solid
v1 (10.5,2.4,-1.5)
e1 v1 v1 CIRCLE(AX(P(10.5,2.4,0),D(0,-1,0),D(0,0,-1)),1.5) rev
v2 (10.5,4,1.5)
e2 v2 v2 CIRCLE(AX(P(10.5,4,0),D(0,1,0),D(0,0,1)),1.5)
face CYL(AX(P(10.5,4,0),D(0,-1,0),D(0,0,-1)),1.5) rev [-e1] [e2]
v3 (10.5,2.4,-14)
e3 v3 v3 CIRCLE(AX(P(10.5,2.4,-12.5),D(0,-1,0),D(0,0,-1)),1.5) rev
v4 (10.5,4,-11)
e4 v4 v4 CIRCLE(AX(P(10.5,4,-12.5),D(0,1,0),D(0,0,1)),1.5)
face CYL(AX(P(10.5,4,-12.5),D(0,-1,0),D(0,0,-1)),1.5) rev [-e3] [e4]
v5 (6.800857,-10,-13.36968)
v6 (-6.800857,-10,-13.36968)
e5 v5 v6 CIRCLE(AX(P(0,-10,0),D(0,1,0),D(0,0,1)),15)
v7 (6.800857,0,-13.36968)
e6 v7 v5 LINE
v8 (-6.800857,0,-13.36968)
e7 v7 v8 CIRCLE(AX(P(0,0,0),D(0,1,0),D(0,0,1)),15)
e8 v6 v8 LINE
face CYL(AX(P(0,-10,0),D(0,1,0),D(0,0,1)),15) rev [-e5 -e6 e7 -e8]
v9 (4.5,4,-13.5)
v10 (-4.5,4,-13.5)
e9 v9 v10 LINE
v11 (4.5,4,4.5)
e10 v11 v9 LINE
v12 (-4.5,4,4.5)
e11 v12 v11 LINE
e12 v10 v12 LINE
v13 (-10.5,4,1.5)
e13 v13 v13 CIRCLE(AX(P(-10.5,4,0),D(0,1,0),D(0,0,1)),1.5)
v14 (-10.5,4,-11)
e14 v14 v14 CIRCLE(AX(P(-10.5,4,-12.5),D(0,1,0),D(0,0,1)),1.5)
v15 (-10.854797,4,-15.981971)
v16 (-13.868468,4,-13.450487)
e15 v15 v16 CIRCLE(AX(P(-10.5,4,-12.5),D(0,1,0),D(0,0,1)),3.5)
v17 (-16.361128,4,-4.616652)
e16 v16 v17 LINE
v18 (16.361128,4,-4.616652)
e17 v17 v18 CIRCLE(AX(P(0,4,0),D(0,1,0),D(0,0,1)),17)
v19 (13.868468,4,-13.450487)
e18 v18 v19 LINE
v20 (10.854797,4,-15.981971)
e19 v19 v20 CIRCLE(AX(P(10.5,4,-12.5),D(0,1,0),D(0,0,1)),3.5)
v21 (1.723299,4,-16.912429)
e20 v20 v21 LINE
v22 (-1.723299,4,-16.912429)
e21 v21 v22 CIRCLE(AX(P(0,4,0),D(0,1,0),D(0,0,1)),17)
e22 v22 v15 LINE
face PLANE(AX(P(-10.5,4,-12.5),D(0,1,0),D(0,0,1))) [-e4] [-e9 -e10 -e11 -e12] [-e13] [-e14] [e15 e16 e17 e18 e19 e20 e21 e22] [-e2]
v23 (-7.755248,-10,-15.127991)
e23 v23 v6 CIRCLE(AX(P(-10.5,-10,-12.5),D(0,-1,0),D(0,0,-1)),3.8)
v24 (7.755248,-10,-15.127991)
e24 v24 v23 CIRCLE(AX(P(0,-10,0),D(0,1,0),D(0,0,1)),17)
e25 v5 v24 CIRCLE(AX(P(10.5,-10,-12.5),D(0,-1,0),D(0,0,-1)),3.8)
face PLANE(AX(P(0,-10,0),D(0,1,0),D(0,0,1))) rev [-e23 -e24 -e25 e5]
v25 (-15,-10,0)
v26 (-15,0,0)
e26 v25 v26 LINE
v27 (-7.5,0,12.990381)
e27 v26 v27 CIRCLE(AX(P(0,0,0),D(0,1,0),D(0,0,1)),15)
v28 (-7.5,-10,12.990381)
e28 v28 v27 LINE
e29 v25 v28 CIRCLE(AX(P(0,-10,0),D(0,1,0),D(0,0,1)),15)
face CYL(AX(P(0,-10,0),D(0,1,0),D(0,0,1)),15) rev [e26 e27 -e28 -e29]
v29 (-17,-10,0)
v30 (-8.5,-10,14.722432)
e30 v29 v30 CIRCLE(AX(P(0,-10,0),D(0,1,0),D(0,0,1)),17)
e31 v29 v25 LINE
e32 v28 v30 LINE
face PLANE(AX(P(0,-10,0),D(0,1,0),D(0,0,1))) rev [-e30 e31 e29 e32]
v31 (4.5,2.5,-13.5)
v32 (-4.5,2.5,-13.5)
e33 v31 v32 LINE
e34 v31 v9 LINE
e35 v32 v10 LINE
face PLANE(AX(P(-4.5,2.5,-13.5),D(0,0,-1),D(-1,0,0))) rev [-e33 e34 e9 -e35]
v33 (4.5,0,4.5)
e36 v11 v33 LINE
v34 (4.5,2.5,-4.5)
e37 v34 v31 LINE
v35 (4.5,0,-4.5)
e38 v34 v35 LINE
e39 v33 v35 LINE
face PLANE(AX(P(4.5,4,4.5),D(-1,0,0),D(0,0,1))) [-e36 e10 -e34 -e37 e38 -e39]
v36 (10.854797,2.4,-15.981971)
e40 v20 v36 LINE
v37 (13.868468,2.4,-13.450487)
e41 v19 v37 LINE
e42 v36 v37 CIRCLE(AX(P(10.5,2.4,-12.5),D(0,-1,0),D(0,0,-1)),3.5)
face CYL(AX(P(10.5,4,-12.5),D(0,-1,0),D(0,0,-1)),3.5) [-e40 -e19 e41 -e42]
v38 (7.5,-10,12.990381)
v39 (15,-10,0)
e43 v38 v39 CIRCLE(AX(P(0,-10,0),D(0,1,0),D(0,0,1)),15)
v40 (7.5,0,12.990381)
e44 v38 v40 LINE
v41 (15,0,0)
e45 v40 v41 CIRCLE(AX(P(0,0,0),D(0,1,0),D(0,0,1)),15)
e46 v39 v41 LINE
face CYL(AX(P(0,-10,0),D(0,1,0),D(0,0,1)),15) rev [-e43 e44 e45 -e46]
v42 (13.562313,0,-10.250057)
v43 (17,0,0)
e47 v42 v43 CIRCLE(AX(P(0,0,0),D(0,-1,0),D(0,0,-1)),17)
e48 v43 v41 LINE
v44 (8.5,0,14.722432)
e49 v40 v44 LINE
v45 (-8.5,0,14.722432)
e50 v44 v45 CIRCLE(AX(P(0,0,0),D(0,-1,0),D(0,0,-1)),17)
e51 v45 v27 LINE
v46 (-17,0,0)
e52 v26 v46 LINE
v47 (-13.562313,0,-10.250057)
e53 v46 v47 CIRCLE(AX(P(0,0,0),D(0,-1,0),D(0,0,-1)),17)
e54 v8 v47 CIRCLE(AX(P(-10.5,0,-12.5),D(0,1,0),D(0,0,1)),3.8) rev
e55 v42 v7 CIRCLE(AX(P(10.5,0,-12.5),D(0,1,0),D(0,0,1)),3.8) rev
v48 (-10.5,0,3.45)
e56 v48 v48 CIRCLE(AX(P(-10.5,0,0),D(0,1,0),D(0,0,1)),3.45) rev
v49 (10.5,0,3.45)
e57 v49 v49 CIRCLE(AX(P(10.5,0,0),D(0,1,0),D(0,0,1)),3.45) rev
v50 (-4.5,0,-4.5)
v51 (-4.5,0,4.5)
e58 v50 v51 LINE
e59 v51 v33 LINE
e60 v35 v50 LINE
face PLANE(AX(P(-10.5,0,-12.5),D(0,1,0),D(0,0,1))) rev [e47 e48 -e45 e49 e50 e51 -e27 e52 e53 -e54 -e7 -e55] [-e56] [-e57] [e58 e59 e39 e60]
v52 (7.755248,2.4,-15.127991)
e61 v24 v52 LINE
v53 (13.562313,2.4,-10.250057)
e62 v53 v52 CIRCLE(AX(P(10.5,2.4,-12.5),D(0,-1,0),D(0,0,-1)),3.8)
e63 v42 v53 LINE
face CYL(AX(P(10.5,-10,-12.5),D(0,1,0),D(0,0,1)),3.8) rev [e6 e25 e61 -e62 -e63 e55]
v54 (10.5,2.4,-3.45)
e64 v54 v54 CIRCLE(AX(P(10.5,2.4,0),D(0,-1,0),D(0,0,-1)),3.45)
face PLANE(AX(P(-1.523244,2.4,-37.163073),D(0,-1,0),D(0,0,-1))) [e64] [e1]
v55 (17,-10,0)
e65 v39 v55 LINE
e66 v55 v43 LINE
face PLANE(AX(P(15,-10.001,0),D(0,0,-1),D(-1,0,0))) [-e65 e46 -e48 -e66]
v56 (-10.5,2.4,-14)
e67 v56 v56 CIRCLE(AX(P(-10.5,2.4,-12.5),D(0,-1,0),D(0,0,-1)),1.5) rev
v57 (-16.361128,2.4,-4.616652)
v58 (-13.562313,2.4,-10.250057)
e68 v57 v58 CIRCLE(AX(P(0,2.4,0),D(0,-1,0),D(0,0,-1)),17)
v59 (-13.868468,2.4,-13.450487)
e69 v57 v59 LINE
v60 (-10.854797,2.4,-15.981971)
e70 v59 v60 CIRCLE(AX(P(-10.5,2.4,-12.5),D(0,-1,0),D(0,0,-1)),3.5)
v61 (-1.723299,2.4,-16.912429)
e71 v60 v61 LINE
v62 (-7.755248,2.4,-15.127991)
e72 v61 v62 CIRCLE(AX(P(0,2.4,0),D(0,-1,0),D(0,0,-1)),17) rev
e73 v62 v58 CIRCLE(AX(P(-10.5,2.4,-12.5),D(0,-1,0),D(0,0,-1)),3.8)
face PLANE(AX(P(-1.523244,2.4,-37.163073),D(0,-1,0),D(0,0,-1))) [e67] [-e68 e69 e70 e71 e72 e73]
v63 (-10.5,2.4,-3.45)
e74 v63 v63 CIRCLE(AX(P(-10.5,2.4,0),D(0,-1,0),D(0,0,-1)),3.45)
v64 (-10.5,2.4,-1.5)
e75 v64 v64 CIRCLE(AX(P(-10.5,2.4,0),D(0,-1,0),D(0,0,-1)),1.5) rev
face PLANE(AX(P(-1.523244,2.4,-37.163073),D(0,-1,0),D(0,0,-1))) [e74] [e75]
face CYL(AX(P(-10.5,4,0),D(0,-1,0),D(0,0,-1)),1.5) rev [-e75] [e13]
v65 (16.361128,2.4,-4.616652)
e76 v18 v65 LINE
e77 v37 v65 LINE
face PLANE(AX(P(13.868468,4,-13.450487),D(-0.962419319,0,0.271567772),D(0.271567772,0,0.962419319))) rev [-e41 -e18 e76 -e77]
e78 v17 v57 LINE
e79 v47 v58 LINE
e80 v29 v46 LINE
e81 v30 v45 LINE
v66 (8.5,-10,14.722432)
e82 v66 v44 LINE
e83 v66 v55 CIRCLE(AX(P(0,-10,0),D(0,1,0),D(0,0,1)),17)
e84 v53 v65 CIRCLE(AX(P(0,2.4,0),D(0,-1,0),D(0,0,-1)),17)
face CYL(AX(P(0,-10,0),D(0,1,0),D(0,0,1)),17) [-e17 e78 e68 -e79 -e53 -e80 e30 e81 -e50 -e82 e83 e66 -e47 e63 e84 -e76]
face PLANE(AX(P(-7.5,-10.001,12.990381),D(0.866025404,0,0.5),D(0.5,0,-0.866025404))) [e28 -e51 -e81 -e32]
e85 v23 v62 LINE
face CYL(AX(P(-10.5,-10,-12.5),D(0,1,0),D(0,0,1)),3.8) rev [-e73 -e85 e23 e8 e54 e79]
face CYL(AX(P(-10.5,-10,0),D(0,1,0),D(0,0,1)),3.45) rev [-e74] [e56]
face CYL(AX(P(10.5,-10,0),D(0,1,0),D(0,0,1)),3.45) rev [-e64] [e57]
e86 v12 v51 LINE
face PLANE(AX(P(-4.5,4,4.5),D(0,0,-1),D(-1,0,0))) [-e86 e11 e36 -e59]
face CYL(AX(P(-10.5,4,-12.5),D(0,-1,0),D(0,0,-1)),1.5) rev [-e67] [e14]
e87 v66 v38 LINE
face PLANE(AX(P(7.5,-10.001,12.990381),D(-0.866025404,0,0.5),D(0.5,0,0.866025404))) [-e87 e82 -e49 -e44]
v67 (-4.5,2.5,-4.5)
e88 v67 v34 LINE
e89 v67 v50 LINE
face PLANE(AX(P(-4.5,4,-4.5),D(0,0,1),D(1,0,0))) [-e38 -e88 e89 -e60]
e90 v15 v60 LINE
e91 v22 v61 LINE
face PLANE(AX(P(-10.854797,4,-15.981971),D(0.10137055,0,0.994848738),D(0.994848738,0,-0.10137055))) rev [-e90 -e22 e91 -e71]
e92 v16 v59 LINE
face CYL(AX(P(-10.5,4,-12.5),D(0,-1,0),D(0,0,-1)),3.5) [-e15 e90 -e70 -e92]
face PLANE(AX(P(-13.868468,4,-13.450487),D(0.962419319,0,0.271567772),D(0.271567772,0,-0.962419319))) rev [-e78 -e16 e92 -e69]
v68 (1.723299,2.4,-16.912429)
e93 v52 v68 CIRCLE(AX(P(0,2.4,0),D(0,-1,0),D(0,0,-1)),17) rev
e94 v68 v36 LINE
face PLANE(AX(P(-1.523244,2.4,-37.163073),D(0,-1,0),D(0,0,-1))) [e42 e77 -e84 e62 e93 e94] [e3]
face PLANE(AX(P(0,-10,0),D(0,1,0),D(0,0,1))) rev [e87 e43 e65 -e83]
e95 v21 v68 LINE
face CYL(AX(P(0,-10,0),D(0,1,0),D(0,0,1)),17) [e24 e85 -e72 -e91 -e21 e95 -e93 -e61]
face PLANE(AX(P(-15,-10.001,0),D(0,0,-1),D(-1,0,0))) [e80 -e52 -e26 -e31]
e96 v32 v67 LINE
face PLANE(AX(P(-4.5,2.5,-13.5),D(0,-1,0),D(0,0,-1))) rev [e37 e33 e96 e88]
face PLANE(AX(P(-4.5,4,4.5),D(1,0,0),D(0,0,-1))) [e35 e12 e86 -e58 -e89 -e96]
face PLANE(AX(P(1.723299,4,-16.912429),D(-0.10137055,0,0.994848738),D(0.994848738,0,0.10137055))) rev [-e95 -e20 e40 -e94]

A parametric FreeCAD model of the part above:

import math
import FreeCAD as App
import Part
import Sketcher
from FreeCAD import Vector
Q = App.Units.Quantity

doc = App.newDocument("Part")
body = doc.addObject("PartDesign::Body", "Body")

# Sketch on XZ plane
sketch1 = body.newObject("Sketcher::SketchObject", "Sketch")
sketch1.AttachmentSupport = (doc.getObject("XZ_Plane"), [""])
sketch1.MapMode = "FlatFace"
sketch1.addGeometry([
    Part.Circle(Vector(0, 0, 0), Vector(0, 0, 1), 17),
    Part.Circle(Vector(0, 0, 0), Vector(0, 0, 1), 15),
], False)
sketch1.addConstraint([
    Sketcher.Constraint("Coincident", 0, 3, -1, 1),
    Sketcher.Constraint("Coincident", 1, 3, -1, 1),
    Sketcher.Constraint("Diameter", 0, 34.0),
    Sketcher.Constraint("Diameter", 1, 30.0),
])
pad1 = body.newObject("PartDesign::Pad", "Pad")
pad1.Profile = sketch1
pad1.Length = 10

# Sketch on XZ plane
sketch2 = body.newObject("Sketcher::SketchObject", "Sketch001")
sketch2.AttachmentSupport = (doc.getObject("XZ_Plane"), [""])
sketch2.MapMode = "FlatFace"
sketch2.AttachmentOffset = App.Placement(Vector(0, 0, -4), App.Rotation())
sketch2.addGeometry([
    Part.LineSegment(Vector(-1.7, -16.9, 0), Vector(-10.9, -16, 0)),  # 0
    Part.ArcOfCircle(Part.Circle(Vector(-10.5, -12.5, 0), Vector(0, 0, 1), 3.5), math.radians(-164), math.radians(-96)),  # 1
    Part.LineSegment(Vector(-13.9, -13.5, 0), Vector(-16.4, -4.6, 0)),  # 2
    Part.ArcOfCircle(Part.Circle(Vector(0, 0, 0), Vector(0, 0, 1), 17), math.radians(-16), math.radians(196)),  # 3
    Part.LineSegment(Vector(16.4, -4.6, 0), Vector(13.9, -13.5, 0)),  # 4
    Part.ArcOfCircle(Part.Circle(Vector(10.5, -12.5, 0), Vector(0, 0, 1), 3.5), math.radians(-84), math.radians(-16)),  # 5
    Part.LineSegment(Vector(10.9, -16, 0), Vector(1.7, -16.9, 0)),  # 6
    Part.ArcOfCircle(Part.Circle(Vector(0, 0, 0), Vector(0, 0, 1), 17), math.radians(-95.82), math.radians(-84.18)),  # 7
    Part.Circle(Vector(10.5, 0, 0), Vector(0, 0, 1), 1.5),  # 8
    Part.LineSegment(Vector(-4.5, 4.5, 0), Vector(-4.5, -4.5, 0)),  # 9
    Part.LineSegment(Vector(-4.5, -4.5, 0), Vector(4.5, -4.5, 0)),  # 10
    Part.LineSegment(Vector(4.5, -4.5, 0), Vector(4.5, 4.5, 0)),  # 11
    Part.LineSegment(Vector(4.5, 4.5, 0), Vector(-4.5, 4.5, 0)),  # 12
    Part.Circle(Vector(-10.5, 0, 0), Vector(0, 0, 1), 1.5),  # 13
    Part.Circle(Vector(10.5, -12.5, 0), Vector(0, 0, 1), 1.5),  # 14
    Part.Circle(Vector(-10.5, -12.5, 0), Vector(0, 0, 1), 1.5),  # 15
], False)
sketch2.addConstraint([
    Sketcher.Constraint("Tangent", 0, 2, 1, 2),
    Sketcher.Constraint("Tangent", 1, 1, 2, 1),
    Sketcher.Constraint("Tangent", 2, 2, 3, 2),
    Sketcher.Constraint("Tangent", 3, 1, 4, 1),
    Sketcher.Constraint("Tangent", 4, 2, 5, 2),
    Sketcher.Constraint("Tangent", 5, 1, 6, 1),
    Sketcher.Constraint("Tangent", 6, 2, 7, 2),
    Sketcher.Constraint("Tangent", 7, 1, 0, 1),
    Sketcher.Constraint("Coincident", 9, 2, 10, 1),
    Sketcher.Constraint("Coincident", 10, 2, 11, 1),
    Sketcher.Constraint("Coincident", 11, 2, 12, 1),
    Sketcher.Constraint("Coincident", 12, 2, 9, 1),
    Sketcher.Constraint("Vertical", 9),
    Sketcher.Constraint("Horizontal", 10),
    Sketcher.Constraint("Vertical", 11),
    Sketcher.Constraint("Horizontal", 12),
    Sketcher.Constraint("Coincident", 3, 3, -1, 1),
    Sketcher.Constraint("Coincident", 7, 3, -1, 1),
    Sketcher.Constraint("Coincident", 14, 3, 5, 3),
    Sketcher.Constraint("Coincident", 15, 3, 1, 3),
    Sketcher.Constraint("Equal", 1, 5),
    Sketcher.Constraint("Equal", 3, 7),
    Sketcher.Constraint("Equal", 8, 13),
    Sketcher.Constraint("Equal", 13, 14),
    Sketcher.Constraint("Equal", 14, 15),
    Sketcher.Constraint("Symmetric", 8, 3, 13, 3, -1, 1),
    Sketcher.Constraint("Symmetric", 9, 2, 11, 2, -1, 1),
    Sketcher.Constraint("Symmetric", 1, 3, 5, 3, -2),
    Sketcher.Constraint("PointOnObject", 8, 3, -1),
    Sketcher.Constraint("Vertical", 5, 3, 8, 3),
    Sketcher.Constraint("Equal", 12, 9),
    Sketcher.Constraint("Diameter", 8, 3.0),
    Sketcher.Constraint("Radius", 3, 17.0),
    Sketcher.Constraint("Radius", 1, 3.5),
    Sketcher.Constraint("DistanceX", 10, 1, 10, 2, 9.0),
    Sketcher.Constraint("DistanceX", 1, 3, 5, 3, 21.0),
    Sketcher.Constraint("DistanceY", 1, 3, 9, 2, 8.0),
])
pad2 = body.newObject("PartDesign::Pad", "Pad001")
pad2.Profile = sketch2
pad2.Length = 4

# Sketch on XZ plane
sketch3 = body.newObject("Sketcher::SketchObject", "Sketch002")
sketch3.AttachmentSupport = (doc.getObject("XZ_Plane"), [""])
sketch3.MapMode = "FlatFace"
sketch3.addGeometry([
    Part.LineSegment(Vector(7.5, 13, 0), Vector(8.5, 14.7, 0)),
    Part.ArcOfCircle(Part.Circle(Vector(0, 0, 0), Vector(0, 0, 1), 17), math.radians(60), math.radians(120)),
    Part.LineSegment(Vector(-8.5, 14.7, 0), Vector(-7.5, 13, 0)),
    Part.ArcOfCircle(Part.Circle(Vector(0, 0, 0), Vector(0, 0, 1), 15), math.radians(60), math.radians(120)),
], False)
sketch3.addConstraint([
    Sketcher.Constraint("Coincident", 0, 2, 1, 1),
    Sketcher.Constraint("Coincident", 1, 2, 2, 1),
    Sketcher.Constraint("Coincident", 2, 2, 3, 2),
    Sketcher.Constraint("Coincident", 3, 1, 0, 1),
    Sketcher.Constraint("Coincident", 1, 3, -1, 1),
    Sketcher.Constraint("Coincident", 3, 3, -1, 1),
    Sketcher.Constraint("Horizontal", 0, 2, 1, 2),
    Sketcher.Constraint("Horizontal", 2, 2, 3, 1),
    Sketcher.Constraint("Radius", 1, 17.0),
    Sketcher.Constraint("Radius", 3, 15.0),
    Sketcher.Constraint("Angle", 0, Q("60 deg")),
    Sketcher.Constraint("DistanceX", 1, 2, 0, 2, 17.0),
])
pocket1 = body.newObject("PartDesign::Pocket", "Pocket")
pocket1.Profile = sketch3
pocket1.Type = "UpToFirst"
pocket1.Reversed = True

# Sketch on XZ plane
sketch4 = body.newObject("Sketcher::SketchObject", "Sketch003")
sketch4.AttachmentSupport = (doc.getObject("XZ_Plane"), [""])
sketch4.MapMode = "FlatFace"
sketch4.addGeometry([
    Part.LineSegment(Vector(7.5, -13, 0), Vector(8.5, -14.7, 0)),
    Part.ArcOfCircle(Part.Circle(Vector(0, 0, 0), Vector(0, 0, 1), 17), math.radians(-60), math.radians(0)),
    Part.LineSegment(Vector(17, 0, 0), Vector(15, 0, 0)),
    Part.ArcOfCircle(Part.Circle(Vector(0, 0, 0), Vector(0, 0, 1), 15), math.radians(-60), math.radians(0)),
], False)
sketch4.addConstraint([
    Sketcher.Constraint("Coincident", 0, 2, 1, 1),
    Sketcher.Constraint("Coincident", 1, 2, 2, 1),
    Sketcher.Constraint("Coincident", 2, 2, 3, 2),
    Sketcher.Constraint("Coincident", 3, 1, 0, 1),
    Sketcher.Constraint("Horizontal", 2),
    Sketcher.Constraint("Coincident", 1, 3, -1, 1),
    Sketcher.Constraint("Coincident", 3, 3, -1, 1),
    Sketcher.Constraint("PointOnObject", 1, 2, -1),
    Sketcher.Constraint("Radius", 1, 17.0),
    Sketcher.Constraint("Radius", 3, 15.0),
    Sketcher.Constraint("Angle", 0, Q("-60 deg")),
    Sketcher.Constraint("DistanceX", -1, 1, 0, 2, 8.5),
])
pocket2 = body.newObject("PartDesign::Pocket", "Pocket001")
pocket2.Profile = sketch4
pocket2.Type = "UpToFirst"
pocket2.Reversed = True

# Sketch on XZ plane
sketch5 = body.newObject("Sketcher::SketchObject", "Sketch004")
sketch5.AttachmentSupport = (doc.getObject("XZ_Plane"), [""])
sketch5.MapMode = "FlatFace"
sketch5.addGeometry([
    Part.LineSegment(Vector(-8.5, -14.7, 0), Vector(-7.5, -13, 0)),
    Part.ArcOfCircle(Part.Circle(Vector(0, 0, 0), Vector(0, 0, 1), 15), math.radians(180), math.radians(240)),
    Part.LineSegment(Vector(-15, 0, 0), Vector(-17, 0, 0)),
    Part.ArcOfCircle(Part.Circle(Vector(0, 0, 0), Vector(0, 0, 1), 17), math.radians(-180), math.radians(-120)),
], False)
sketch5.addConstraint([
    Sketcher.Constraint("Coincident", 0, 2, 1, 2),
    Sketcher.Constraint("Coincident", 1, 1, 2, 1),
    Sketcher.Constraint("Coincident", 2, 2, 3, 1),
    Sketcher.Constraint("Coincident", 3, 2, 0, 1),
    Sketcher.Constraint("Horizontal", 2),
    Sketcher.Constraint("Coincident", 1, 3, -1, 1),
    Sketcher.Constraint("Coincident", 3, 3, -1, 1),
    Sketcher.Constraint("PointOnObject", 1, 1, -1),
    Sketcher.Constraint("Radius", 1, 15.0),
    Sketcher.Constraint("Radius", 3, 17.0),
    Sketcher.Constraint("Angle", 0, Q("60 deg")),
    Sketcher.Constraint("DistanceX", 0, 2, -1, 1, 7.5),
])
pocket3 = body.newObject("PartDesign::Pocket", "Pocket002")
pocket3.Profile = sketch5
pocket3.Type = "UpToFirst"
pocket3.Reversed = True

# Sketch on XZ plane
sketch6 = body.newObject("Sketcher::SketchObject", "Sketch005")
sketch6.AttachmentSupport = (doc.getObject("XZ_Plane"), [""])
sketch6.MapMode = "FlatFace"
sketch6.addGeometry([
    Part.LineSegment(Vector(-16.4, -4.6, 0), Vector(-13.9, -13.5, 0)),  # 0
    Part.ArcOfCircle(Part.Circle(Vector(-10.5, -12.5, 0), Vector(0, 0, 1), 3.5), math.radians(-164), math.radians(-96)),  # 1
    Part.LineSegment(Vector(-10.9, -16, 0), Vector(-1.7, -16.9, 0)),  # 2
    Part.ArcOfCircle(Part.Circle(Vector(0, 0, 0), Vector(0, 0, 1), 17), math.radians(-117), math.radians(-96)),  # 3
    Part.ArcOfCircle(Part.Circle(Vector(-10.5, -12.5, 0), Vector(0, 0, 1), 3.8), math.radians(-44), math.radians(144)),  # 4
    Part.ArcOfCircle(Part.Circle(Vector(0, 0, 0), Vector(0, 0, 1), 17), math.radians(-164), math.radians(-143)),  # 5
    Part.Circle(Vector(-10.5, -12.5, 0), Vector(0, 0, 1), 1.5),  # 6
    Part.ArcOfCircle(Part.Circle(Vector(0, 0, 0), Vector(0, 0, 1), 17), math.radians(-84), math.radians(-63)),  # 7
    Part.LineSegment(Vector(1.7, -16.9, 0), Vector(10.9, -16, 0)),  # 8
    Part.ArcOfCircle(Part.Circle(Vector(10.5, -12.5, 0), Vector(0, 0, 1), 3.5), math.radians(-84), math.radians(-16)),  # 9
    Part.LineSegment(Vector(13.9, -13.5, 0), Vector(16.4, -4.6, 0)),  # 10
    Part.ArcOfCircle(Part.Circle(Vector(0, 0, 0), Vector(0, 0, 1), 17), math.radians(-37), math.radians(-16)),  # 11
    Part.ArcOfCircle(Part.Circle(Vector(10.5, -12.5, 0), Vector(0, 0, 1), 3.8), math.radians(36), math.radians(224)),  # 12
    Part.Circle(Vector(10.5, -12.5, 0), Vector(0, 0, 1), 1.5),  # 13
    Part.Circle(Vector(-10.5, 0, 0), Vector(0, 0, 1), 3.5),  # 14
    Part.Circle(Vector(-10.5, 0, 0), Vector(0, 0, 1), 1.5),  # 15
    Part.Circle(Vector(10.5, 0, 0), Vector(0, 0, 1), 3.5),  # 16
    Part.Circle(Vector(10.5, 0, 0), Vector(0, 0, 1), 1.5),  # 17
], False)
sketch6.addConstraint([
    Sketcher.Constraint("Tangent", 0, 2, 1, 1),
    Sketcher.Constraint("Tangent", 1, 2, 2, 1),
    Sketcher.Constraint("Tangent", 2, 2, 3, 2),
    Sketcher.Constraint("Coincident", 3, 1, 4, 1),
    Sketcher.Constraint("Coincident", 4, 2, 5, 2),
    Sketcher.Constraint("Tangent", 5, 1, 0, 1),
    Sketcher.Constraint("Tangent", 7, 1, 8, 1),
    Sketcher.Constraint("Tangent", 8, 2, 9, 1),
    Sketcher.Constraint("Tangent", 9, 2, 10, 1),
    Sketcher.Constraint("Tangent", 10, 2, 11, 2),
    Sketcher.Constraint("Coincident", 11, 1, 12, 1),
    Sketcher.Constraint("Coincident", 12, 2, 7, 2),
    Sketcher.Constraint("Coincident", 3, 3, -1, 1),
    Sketcher.Constraint("Coincident", 5, 3, -1, 1),
    Sketcher.Constraint("Coincident", 7, 3, -1, 1),
    Sketcher.Constraint("Coincident", 11, 3, -1, 1),
    Sketcher.Constraint("Coincident", 4, 3, 1, 3),
    Sketcher.Constraint("Coincident", 6, 3, 1, 3),
    Sketcher.Constraint("Coincident", 12, 3, 9, 3),
    Sketcher.Constraint("Coincident", 13, 3, 9, 3),
    Sketcher.Constraint("Coincident", 15, 3, 14, 3),
    Sketcher.Constraint("Coincident", 17, 3, 16, 3),
    Sketcher.Constraint("Equal", 3, 5),
    Sketcher.Constraint("Equal", 5, 7),
    Sketcher.Constraint("Equal", 1, 9),
    Sketcher.Constraint("Equal", 7, 11),
    Sketcher.Constraint("Equal", 4, 12),
    Sketcher.Constraint("Equal", 6, 13),
    Sketcher.Constraint("Equal", 13, 15),
    Sketcher.Constraint("Equal", 14, 16),
    Sketcher.Constraint("Equal", 15, 17),
    Sketcher.Constraint("Symmetric", 14, 3, 16, 3, -1, 1),
    Sketcher.Constraint("Symmetric", 1, 3, 9, 3, -2),
    Sketcher.Constraint("PointOnObject", 14, 3, -1),
    Sketcher.Constraint("Vertical", 6, 3, 14, 3),
    Sketcher.Constraint("Diameter", 6, 3.0),
    Sketcher.Constraint("Radius", 3, 17.0),
    Sketcher.Constraint("Diameter", 14, 6.9),
    Sketcher.Constraint("Radius", 1, 3.5),
    Sketcher.Constraint("Radius", 4, 3.8),
    Sketcher.Constraint("DistanceX", 1, 3, 9, 3, 21.0),
    Sketcher.Constraint("DistanceY", 1, 3, -1, 1, 12.5),
])
pocket4 = body.newObject("PartDesign::Pocket", "Pocket003")
pocket4.Profile = sketch6
pocket4.Type = "TwoLengths"
pocket4.Length = 27.038433
pocket4.Length2 = 2.4
pocket4.Reversed = True

# Sketch on XZ plane
sketch7 = body.newObject("Sketcher::SketchObject", "Sketch006")
sketch7.AttachmentSupport = (doc.getObject("XZ_Plane"), [""])
sketch7.MapMode = "FlatFace"
sketch7.AttachmentOffset = App.Placement(Vector(0, 0, -4), App.Rotation())
sketch7.addGeometry([
    Part.LineSegment(Vector(-4, -14, 0), Vector(-4, -4, 0)),
    Part.LineSegment(Vector(-4, -4, 0), Vector(4, -4, 0)),
    Part.LineSegment(Vector(4, -4, 0), Vector(4, -14, 0)),
    Part.LineSegment(Vector(4, -14, 0), Vector(-4, -14, 0)),
], False)
sketch7.addConstraint([
    Sketcher.Constraint("Coincident", 0, 2, 1, 1),
    Sketcher.Constraint("Coincident", 1, 2, 2, 1),
    Sketcher.Constraint("Coincident", 2, 2, 3, 1),
    Sketcher.Constraint("Coincident", 3, 2, 0, 1),
    Sketcher.Constraint("Vertical", 0),
    Sketcher.Constraint("Horizontal", 1),
    Sketcher.Constraint("Vertical", 2),
    Sketcher.Constraint("Horizontal", 3),
    Sketcher.Constraint("Equal", 3, 0),
    Sketcher.Constraint("DistanceX", 1, 1, 1, 2, 9.0),
    Sketcher.Constraint("DistanceX", 0, 2, -1, 1, 4.5),
    Sketcher.Constraint("DistanceY", 0, 2, -1, 1, 4.5),
])
pocket5 = body.newObject("PartDesign::Pocket", "Pocket004")
pocket5.Profile = sketch7
pocket5.Length = 1.5
pocket5.Reversed = True

doc.recompute()
